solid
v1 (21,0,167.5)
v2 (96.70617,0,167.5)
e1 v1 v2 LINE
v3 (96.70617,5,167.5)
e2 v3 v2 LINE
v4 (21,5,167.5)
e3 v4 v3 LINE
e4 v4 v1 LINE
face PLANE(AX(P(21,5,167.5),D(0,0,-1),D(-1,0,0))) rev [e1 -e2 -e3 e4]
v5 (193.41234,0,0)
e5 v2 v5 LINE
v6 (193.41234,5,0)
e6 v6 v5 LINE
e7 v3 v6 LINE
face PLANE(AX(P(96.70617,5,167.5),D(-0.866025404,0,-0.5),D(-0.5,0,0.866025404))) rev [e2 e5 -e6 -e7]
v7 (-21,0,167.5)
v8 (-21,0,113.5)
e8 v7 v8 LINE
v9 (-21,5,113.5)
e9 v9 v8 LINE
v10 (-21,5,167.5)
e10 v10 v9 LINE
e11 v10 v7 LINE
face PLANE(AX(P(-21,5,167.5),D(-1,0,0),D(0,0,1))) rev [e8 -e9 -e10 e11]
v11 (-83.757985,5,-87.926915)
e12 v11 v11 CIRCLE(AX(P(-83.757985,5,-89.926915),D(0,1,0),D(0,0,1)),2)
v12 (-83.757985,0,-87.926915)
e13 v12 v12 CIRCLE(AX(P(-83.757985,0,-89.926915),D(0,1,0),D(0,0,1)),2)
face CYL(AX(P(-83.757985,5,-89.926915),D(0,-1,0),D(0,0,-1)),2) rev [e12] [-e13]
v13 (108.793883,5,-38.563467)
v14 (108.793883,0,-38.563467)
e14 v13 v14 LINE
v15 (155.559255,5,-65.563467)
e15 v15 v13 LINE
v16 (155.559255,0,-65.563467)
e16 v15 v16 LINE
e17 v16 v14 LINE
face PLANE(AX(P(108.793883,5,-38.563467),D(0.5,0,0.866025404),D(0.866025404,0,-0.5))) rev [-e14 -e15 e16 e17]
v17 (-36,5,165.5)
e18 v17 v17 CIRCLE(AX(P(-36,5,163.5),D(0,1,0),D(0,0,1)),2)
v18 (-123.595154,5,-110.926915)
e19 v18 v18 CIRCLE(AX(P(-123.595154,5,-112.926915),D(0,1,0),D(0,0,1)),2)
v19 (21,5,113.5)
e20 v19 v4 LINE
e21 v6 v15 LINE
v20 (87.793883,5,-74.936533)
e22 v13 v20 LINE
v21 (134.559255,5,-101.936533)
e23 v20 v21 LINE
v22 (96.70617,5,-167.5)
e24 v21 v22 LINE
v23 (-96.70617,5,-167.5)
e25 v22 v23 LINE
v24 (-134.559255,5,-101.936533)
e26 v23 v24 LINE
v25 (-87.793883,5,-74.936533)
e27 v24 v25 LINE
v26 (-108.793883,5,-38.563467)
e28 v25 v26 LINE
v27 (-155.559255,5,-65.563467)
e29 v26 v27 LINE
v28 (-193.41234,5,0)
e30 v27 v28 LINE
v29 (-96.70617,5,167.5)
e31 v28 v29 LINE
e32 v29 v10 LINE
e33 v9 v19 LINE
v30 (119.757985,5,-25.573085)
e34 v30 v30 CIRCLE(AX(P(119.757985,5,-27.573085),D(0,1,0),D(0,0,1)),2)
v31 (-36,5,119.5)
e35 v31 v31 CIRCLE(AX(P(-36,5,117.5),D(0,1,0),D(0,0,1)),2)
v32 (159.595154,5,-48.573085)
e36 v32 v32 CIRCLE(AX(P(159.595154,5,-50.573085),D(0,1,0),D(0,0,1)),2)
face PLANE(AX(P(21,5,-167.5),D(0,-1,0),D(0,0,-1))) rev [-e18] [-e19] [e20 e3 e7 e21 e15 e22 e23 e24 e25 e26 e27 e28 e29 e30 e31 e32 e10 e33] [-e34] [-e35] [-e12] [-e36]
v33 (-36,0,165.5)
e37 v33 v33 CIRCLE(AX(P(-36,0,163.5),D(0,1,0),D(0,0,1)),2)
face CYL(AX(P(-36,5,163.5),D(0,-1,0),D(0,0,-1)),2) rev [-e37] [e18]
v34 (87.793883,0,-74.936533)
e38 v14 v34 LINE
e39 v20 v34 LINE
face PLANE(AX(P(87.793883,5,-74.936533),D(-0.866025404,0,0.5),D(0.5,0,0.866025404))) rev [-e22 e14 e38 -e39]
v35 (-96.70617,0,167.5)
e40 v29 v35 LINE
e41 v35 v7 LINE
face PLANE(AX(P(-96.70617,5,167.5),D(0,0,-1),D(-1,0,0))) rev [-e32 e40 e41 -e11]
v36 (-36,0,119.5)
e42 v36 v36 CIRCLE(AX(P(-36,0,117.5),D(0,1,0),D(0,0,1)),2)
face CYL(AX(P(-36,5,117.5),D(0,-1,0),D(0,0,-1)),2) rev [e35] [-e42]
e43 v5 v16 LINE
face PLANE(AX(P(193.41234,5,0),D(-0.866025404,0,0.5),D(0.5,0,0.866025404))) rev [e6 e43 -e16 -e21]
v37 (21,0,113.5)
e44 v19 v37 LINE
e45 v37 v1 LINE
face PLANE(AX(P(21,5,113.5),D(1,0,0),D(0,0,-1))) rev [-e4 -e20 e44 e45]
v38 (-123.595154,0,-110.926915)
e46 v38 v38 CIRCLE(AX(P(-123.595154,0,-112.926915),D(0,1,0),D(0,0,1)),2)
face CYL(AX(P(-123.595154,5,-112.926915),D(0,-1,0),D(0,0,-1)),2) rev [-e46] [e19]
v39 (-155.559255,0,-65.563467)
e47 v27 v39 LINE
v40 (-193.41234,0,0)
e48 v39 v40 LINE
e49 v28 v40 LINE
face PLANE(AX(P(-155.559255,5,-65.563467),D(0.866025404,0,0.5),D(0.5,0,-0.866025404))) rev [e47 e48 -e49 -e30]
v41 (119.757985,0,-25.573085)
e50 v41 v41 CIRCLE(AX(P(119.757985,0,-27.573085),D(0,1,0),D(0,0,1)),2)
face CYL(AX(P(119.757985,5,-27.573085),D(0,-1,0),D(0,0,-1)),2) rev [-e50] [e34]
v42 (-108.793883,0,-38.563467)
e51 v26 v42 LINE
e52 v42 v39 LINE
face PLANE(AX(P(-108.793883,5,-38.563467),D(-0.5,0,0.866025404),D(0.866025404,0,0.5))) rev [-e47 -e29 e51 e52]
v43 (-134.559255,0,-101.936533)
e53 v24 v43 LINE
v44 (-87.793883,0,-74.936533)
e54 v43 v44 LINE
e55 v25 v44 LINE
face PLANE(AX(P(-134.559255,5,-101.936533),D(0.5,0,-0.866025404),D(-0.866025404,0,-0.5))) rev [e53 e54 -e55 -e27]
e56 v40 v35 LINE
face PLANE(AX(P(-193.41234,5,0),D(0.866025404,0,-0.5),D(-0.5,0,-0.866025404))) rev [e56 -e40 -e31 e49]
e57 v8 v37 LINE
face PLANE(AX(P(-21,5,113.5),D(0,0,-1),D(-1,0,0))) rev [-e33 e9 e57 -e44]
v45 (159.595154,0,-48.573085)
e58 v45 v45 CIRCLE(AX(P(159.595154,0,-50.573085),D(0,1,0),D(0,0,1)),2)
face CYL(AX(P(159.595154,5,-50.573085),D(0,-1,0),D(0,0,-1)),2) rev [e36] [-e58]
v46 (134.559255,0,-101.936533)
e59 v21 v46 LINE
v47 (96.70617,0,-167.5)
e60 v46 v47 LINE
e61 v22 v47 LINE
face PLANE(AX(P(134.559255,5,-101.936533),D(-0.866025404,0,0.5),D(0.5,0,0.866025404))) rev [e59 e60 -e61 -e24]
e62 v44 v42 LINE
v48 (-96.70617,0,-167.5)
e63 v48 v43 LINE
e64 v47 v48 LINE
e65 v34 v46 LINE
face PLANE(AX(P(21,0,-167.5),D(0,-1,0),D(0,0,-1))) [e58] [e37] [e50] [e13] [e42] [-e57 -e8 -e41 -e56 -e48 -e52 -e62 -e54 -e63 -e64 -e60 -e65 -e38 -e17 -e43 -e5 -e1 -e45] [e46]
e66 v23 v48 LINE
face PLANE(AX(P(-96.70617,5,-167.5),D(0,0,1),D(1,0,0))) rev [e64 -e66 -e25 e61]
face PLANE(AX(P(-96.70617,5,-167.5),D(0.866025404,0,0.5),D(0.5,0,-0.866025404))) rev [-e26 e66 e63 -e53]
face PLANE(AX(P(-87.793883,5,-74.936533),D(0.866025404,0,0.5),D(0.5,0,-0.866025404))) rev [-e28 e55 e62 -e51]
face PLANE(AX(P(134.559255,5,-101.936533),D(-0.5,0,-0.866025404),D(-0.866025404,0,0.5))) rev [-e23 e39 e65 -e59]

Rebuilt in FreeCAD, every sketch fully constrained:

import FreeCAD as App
import Part
import Sketcher

V = App.Vector
Q = App.Units.Quantity

doc = App.newDocument("Part")
params = doc.addObject("Spreadsheet::Sheet", "Params")
for row, (alias, value) in enumerate([
    ("sketch1_diameter", "4 mm"),
    ("sketch1_width", "42 mm"),
    ("sketch1_height", "54 mm"),
    ("sketch1_length", "54 mm"),
    ("sketch1_length2", "42 mm"),
    ("pad1_length", "5 mm"),
], start=1):
    params.set(f"A{row}", alias)
    params.set(f"B{row}", "=" + value)
    params.setAlias(f"B{row}", alias)

body = doc.addObject("PartDesign::Body", "Body")

# Sketch on XZ plane
sketch1 = body.newObject("Sketcher::SketchObject", "Sketch")
sketch1.AttachmentSupport = (doc.getObject("XZ_Plane"), [""])
sketch1.MapMode = "FlatFace"
sketch1.addGeometry([
    Part.LineSegment(V(-96.7, -167.5, 0), V(-134.6, -101.9, 0)),  # 0
    Part.LineSegment(V(-134.6, -101.9, 0), V(-87.8, -74.9, 0)),  # 1
    Part.LineSegment(V(-87.8, -74.9, 0), V(-108.8, -38.6, 0)),  # 2
    Part.LineSegment(V(-108.8, -38.6, 0), V(-155.6, -65.6, 0)),  # 3
    Part.LineSegment(V(-155.6, -65.6, 0), V(-193.4, 0, 0)),  # 4
    Part.LineSegment(V(-193.4, 0, 0), V(-96.7, 167.5, 0)),  # 5
    Part.LineSegment(V(-96.7, 167.5, 0), V(-21, 167.5, 0)),  # 6
    Part.LineSegment(V(-21, 167.5, 0), V(-21, 113.5, 0)),  # 7
    Part.LineSegment(V(-21, 113.5, 0), V(21, 113.5, 0)),  # 8
    Part.LineSegment(V(21, 113.5, 0), V(21, 167.5, 0)),  # 9
    Part.LineSegment(V(21, 167.5, 0), V(96.7, 167.5, 0)),  # 10
    Part.LineSegment(V(96.7, 167.5, 0), V(193.4, 0, 0)),  # 11
    Part.LineSegment(V(193.4, 0, 0), V(155.6, -65.6, 0)),  # 12
    Part.LineSegment(V(155.6, -65.6, 0), V(108.8, -38.6, 0)),  # 13
    Part.LineSegment(V(108.8, -38.6, 0), V(87.8, -74.9, 0)),  # 14
    Part.LineSegment(V(87.8, -74.9, 0), V(134.6, -101.9, 0)),  # 15
    Part.LineSegment(V(134.6, -101.9, 0), V(96.7, -167.5, 0)),  # 16
    Part.LineSegment(V(96.7, -167.5, 0), V(-96.7, -167.5, 0)),  # 17
    Part.Circle(V(-36, 163.5, 0), V(0, 0, 1), 2),  # 18
    Part.Circle(V(-36, 117.5, 0), V(0, 0, 1), 2),  # 19
    Part.Circle(V(-123.6, -112.9, 0), V(0, 0, 1), 2),  # 20
    Part.Circle(V(-83.8, -89.9, 0), V(0, 0, 1), 2),  # 21
    Part.Circle(V(119.8, -27.6, 0), V(0, 0, 1), 2),  # 22
    Part.Circle(V(159.6, -50.6, 0), V(0, 0, 1), 2),  # 23
], False)
sketch1.addConstraint([
    Sketcher.Constraint("Coincident", 0, 2, 1, 1),
    Sketcher.Constraint("Coincident", 1, 2, 2, 1),
    Sketcher.Constraint("Coincident", 2, 2, 3, 1),
    Sketcher.Constraint("Coincident", 3, 2, 4, 1),
    Sketcher.Constraint("Coincident", 4, 2, 5, 1),
    Sketcher.Constraint("Coincident", 5, 2, 6, 1),
    Sketcher.Constraint("Coincident", 6, 2, 7, 1),
    Sketcher.Constraint("Coincident", 7, 2, 8, 1),
    Sketcher.Constraint("Coincident", 8, 2, 9, 1),
    Sketcher.Constraint("Coincident", 9, 2, 10, 1),
    Sketcher.Constraint("Coincident", 10, 2, 11, 1),
    Sketcher.Constraint("Coincident", 11, 2, 12, 1),
    Sketcher.Constraint("Coincident", 12, 2, 13, 1),
    Sketcher.Constraint("Coincident", 13, 2, 14, 1),
    Sketcher.Constraint("Coincident", 14, 2, 15, 1),
    Sketcher.Constraint("Coincident", 15, 2, 16, 1),
    Sketcher.Constraint("Coincident", 16, 2, 17, 1),
    Sketcher.Constraint("Coincident", 17, 2, 0, 1),
    Sketcher.Constraint("Horizontal", 6),
    Sketcher.Constraint("Vertical", 7),
    Sketcher.Constraint("Horizontal", 8),
    Sketcher.Constraint("Vertical", 9),
    Sketcher.Constraint("Horizontal", 10),
    Sketcher.Constraint("Horizontal", 17),
    Sketcher.Constraint("Equal", 18, 19),
    Sketcher.Constraint("Equal", 19, 20),
    Sketcher.Constraint("Equal", 20, 21),
    Sketcher.Constraint("Equal", 21, 22),
    Sketcher.Constraint("Equal", 22, 23),
    Sketcher.Constraint("Symmetric", 4, 2, 11, 2, -1, 1),
    Sketcher.Constraint("Symmetric", 5, 2, 16, 2, -1, 1),
    Sketcher.Constraint("Symmetric", 10, 2, 17, 2, -1, 1),
    Sketcher.Constraint("Symmetric", 3, 2, 12, 2, -2),
    Sketcher.Constraint("Symmetric", 2, 2, 13, 2, -2),
    Sketcher.Constraint("Symmetric", 1, 2, 14, 2, -2),
    Sketcher.Constraint("Symmetric", 0, 2, 15, 2, -2),
    Sketcher.Constraint("PointOnObject", 4, 2, -1),
    Sketcher.Constraint("Perpendicular", 0, 1),
    Sketcher.Constraint("Perpendicular", 1, 2),
    Sketcher.Constraint("Perpendicular", 2, 3),
    Sketcher.Constraint("Perpendicular", 3, 4),
    Sketcher.Constraint("Parallel", 4, 11),
    Sketcher.Constraint("Parallel", 5, 12),
    Sketcher.Constraint("Vertical", 18, 3, 19, 3),
    Sketcher.Constraint("Equal", 6, 10),
    Sketcher.Constraint("Equal", 0, 4),
    Sketcher.Constraint("Diameter", 18, Q("4 mm")),
    Sketcher.Constraint("DistanceX", 8, 1, 8, 2, Q("42 mm")),
    Sketcher.Constraint("DistanceY", 7, 2, 7, 1, Q("54 mm")),
    Sketcher.Constraint("Angle", 0, Q("120 deg")),
    Sketcher.Constraint("Distance", 1, Q("54 mm")),
    Sketcher.Constraint("Distance", 2, Q("42 mm")),
    Sketcher.Constraint("DistanceX", 18, 3, -1, 1, Q("36 mm")),
    Sketcher.Constraint("DistanceY", 19, 3, 18, 3, Q("46 mm")),
    Sketcher.Constraint("DistanceY", 20, 3, 21, 3, Q("23 mm")),
    Sketcher.Constraint("DistanceY", 23, 3, 22, 3, Q("23 mm")),
    Sketcher.Constraint("DistanceY", 18, 3, 5, 2, Q("4 mm")),
    Sketcher.Constraint("DistanceY", -1, 1, 18, 3, Q("163.5 mm")),
    Sketcher.Constraint("DistanceX", 6, 1, 6, 2, Q("75.70617 mm")),
    Sketcher.Constraint("DistanceX", 0, 2, 20, 3, Q("10.964102 mm")),
    Sketcher.Constraint("DistanceX", 1, 2, 21, 3, Q("4.035898 mm")),
    Sketcher.Constraint("DistanceX", 12, 2, 23, 3, Q("4.035898 mm")),
    Sketcher.Constraint("DistanceX", 13, 2, 22, 3, Q("10.964102 mm")),
    Sketcher.Constraint("DistanceY", 21, 3, 22, 3, Q("62.353829 mm")),
    Sketcher.Constraint("DistanceY", 20, 3, 0, 2, Q("10.990381 mm")),
])
sketch1.setExpression("Constraints[46]", "Params.sketch1_diameter")
sketch1.setExpression("Constraints[47]", "Params.sketch1_width")
sketch1.setExpression("Constraints[48]", "Params.sketch1_height")
sketch1.setExpression("Constraints[50]", "Params.sketch1_length")
sketch1.setExpression("Constraints[51]", "Params.sketch1_length2")
pad1 = body.newObject("PartDesign::Pad", "Pad")
pad1.Profile = sketch1
pad1.setExpression("Length", "Params.pad1_length")
pad1.Reversed = True

doc.recompute()
